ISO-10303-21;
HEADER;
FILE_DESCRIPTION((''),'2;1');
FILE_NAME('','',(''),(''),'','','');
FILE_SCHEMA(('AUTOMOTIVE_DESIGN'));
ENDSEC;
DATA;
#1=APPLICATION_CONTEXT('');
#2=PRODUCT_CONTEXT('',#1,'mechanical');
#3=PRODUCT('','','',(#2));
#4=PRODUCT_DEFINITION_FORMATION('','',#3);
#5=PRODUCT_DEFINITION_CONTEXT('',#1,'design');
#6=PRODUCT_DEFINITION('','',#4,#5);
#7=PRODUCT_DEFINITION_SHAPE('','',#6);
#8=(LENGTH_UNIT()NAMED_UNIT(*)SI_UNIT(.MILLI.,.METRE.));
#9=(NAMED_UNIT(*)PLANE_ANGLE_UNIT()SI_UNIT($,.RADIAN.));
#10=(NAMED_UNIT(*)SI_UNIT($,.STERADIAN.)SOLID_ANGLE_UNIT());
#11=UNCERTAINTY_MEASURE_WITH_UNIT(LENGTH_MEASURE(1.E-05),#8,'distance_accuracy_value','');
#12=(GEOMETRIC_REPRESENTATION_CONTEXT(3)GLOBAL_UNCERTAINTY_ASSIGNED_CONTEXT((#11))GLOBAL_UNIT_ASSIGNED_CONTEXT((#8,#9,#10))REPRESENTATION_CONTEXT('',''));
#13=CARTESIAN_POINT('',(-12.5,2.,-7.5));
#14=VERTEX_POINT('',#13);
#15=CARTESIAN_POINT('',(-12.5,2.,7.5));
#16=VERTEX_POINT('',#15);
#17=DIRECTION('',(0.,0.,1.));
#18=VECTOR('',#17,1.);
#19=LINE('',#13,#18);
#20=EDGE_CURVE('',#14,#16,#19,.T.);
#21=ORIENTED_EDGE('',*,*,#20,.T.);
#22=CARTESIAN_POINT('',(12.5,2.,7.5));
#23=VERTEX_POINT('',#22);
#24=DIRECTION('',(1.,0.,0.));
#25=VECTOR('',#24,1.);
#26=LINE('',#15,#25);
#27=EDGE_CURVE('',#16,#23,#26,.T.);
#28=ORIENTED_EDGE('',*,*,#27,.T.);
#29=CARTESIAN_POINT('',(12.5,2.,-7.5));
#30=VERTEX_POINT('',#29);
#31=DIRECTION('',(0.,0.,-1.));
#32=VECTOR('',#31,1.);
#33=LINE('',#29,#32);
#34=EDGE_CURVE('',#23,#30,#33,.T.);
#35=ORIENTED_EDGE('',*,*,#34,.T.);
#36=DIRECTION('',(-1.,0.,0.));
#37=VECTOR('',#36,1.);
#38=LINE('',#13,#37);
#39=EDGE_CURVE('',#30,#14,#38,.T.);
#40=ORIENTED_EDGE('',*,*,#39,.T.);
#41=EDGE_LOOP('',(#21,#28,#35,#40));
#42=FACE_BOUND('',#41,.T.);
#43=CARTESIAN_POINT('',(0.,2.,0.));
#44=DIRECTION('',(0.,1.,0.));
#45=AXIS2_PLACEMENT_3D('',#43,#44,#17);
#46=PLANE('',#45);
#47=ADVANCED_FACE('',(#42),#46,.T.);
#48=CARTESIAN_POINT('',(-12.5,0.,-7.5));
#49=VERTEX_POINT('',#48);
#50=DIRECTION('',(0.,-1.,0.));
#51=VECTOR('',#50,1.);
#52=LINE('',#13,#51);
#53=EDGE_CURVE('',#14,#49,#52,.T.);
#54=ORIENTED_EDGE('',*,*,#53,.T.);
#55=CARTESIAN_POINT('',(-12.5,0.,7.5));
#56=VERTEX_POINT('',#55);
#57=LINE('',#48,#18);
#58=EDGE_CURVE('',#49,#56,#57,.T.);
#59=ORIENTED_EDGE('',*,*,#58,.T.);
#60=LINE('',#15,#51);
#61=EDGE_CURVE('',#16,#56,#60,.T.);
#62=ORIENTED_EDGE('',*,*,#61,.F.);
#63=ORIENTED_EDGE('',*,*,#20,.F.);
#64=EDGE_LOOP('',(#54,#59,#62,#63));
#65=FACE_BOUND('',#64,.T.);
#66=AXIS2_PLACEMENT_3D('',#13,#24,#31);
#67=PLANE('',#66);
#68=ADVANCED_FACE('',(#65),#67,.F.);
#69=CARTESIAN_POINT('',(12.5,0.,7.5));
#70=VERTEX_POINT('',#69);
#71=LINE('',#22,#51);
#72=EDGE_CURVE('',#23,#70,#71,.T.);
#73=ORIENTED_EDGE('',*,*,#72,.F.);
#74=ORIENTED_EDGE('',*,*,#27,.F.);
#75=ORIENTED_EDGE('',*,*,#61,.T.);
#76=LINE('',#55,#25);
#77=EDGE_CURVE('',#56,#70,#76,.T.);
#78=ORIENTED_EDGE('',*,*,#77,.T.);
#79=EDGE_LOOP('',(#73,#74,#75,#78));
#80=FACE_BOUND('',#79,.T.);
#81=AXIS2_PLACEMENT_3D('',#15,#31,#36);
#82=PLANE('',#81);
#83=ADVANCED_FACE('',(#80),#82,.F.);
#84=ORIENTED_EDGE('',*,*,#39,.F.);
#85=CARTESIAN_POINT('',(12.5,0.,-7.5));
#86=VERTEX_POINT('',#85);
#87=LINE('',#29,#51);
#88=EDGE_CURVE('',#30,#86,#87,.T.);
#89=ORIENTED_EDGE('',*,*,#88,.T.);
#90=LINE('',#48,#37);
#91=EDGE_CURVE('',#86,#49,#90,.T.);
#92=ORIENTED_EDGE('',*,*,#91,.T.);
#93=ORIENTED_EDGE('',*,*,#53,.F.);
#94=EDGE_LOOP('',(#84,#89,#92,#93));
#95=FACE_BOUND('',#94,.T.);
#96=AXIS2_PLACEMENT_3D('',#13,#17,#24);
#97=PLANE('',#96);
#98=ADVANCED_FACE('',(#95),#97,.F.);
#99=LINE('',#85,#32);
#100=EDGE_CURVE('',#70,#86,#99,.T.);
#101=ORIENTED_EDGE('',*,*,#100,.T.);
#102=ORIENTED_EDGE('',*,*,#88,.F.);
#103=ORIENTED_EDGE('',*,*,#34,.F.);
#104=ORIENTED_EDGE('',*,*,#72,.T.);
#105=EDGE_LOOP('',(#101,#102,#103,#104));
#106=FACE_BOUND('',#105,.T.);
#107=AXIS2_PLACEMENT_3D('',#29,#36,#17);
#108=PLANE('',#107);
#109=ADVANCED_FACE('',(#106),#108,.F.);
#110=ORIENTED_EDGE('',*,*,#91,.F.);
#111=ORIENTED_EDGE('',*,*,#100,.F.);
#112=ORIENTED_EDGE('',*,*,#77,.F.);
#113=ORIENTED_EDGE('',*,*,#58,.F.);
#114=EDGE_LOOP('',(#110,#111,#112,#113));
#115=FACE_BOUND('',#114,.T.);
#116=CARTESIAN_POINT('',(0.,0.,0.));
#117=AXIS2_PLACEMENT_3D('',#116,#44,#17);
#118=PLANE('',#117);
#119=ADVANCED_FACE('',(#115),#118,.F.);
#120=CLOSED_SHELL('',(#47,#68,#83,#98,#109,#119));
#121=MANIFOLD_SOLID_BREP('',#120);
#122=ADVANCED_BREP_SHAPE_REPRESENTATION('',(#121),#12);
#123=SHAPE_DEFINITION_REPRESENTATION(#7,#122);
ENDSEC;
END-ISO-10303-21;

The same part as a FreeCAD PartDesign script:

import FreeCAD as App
import Part
import Sketcher


def add_polygon(sketch, points):
    """Adds a closed chain of lines whose ends are joined by coincident constraints."""
    first, n = sketch.GeometryCount, len(points)
    for a, b in zip(points, points[1:] + points[:1]):
        sketch.addGeometry(Part.LineSegment(App.Vector(*a, 0), App.Vector(*b, 0)), False)
    for i in range(n):
        sketch.addConstraint(Sketcher.Constraint("Coincident", first + i, 2, first + (i + 1) % n, 1))

doc = App.newDocument("Part")
body = doc.addObject("PartDesign::Body", "Body")

# Sketch on XZ plane
sketch1 = doc.addObject("Sketcher::SketchObject", "Sketch")
body.addObject(sketch1)
sketch1.AttachmentSupport = (doc.XZ_Plane, [""])
sketch1.MapMode = "FlatFace"
add_polygon(sketch1, [(-12, -8), (-12, 8), (12, 8), (12, -8)])  # lines 0-3
sketch1.addConstraint([
    Sketcher.Constraint("Vertical", 0),
    Sketcher.Constraint("Horizontal", 1),
    Sketcher.Constraint("Vertical", 2),
    Sketcher.Constraint("Horizontal", 3),
    Sketcher.Constraint("Symmetric", 0, 2, 2, 2, -1, 1),
    Sketcher.Constraint("DistanceX", 1, 1, 1, 2, 25.0),
    Sketcher.Constraint("DistanceY", 0, 1, 0, 2, 15.0),
])
pad1 = doc.addObject("PartDesign::Pad", "Pad")
body.addObject(pad1)
pad1.Profile = sketch1
pad1.Length = 2
pad1.Reversed = True

doc.recompute()
